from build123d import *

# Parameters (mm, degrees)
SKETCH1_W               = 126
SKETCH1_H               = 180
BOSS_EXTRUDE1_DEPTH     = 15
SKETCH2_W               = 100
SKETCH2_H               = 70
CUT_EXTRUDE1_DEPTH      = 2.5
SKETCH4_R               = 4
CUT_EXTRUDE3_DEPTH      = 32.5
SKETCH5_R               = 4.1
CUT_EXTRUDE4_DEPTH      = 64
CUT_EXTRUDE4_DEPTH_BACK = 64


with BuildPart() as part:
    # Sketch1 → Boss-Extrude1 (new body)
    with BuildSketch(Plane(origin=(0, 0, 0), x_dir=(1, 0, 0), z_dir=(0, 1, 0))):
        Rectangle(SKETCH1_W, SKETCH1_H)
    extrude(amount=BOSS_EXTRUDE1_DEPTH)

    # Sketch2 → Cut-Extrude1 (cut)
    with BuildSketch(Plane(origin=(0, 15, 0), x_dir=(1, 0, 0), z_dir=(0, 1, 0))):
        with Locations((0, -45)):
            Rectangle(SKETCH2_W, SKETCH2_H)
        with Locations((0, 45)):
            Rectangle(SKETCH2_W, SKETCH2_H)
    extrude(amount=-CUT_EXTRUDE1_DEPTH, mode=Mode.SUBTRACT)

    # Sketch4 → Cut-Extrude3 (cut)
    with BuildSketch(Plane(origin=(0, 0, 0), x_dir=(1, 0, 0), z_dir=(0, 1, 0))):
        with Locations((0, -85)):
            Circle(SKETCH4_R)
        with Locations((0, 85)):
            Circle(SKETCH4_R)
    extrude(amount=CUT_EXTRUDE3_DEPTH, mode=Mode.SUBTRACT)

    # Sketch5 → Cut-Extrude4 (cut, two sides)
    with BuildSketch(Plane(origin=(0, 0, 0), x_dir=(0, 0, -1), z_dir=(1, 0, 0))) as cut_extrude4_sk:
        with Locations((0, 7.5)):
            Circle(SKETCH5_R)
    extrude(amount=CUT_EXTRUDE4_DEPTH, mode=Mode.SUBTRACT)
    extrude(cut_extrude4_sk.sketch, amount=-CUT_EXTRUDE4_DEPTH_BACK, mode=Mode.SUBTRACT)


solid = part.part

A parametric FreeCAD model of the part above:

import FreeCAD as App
import Part
import Sketcher
from FreeCAD import Vector
Q = App.Units.Quantity


def add_polygon(sketch, points):
    """Adds a closed chain of lines whose ends are joined by coincident constraints."""
    first, n = sketch.GeometryCount, len(points)
    for a, b in zip(points, points[1:] + points[:1]):
        sketch.addGeometry(Part.LineSegment(App.Vector(*a, 0), App.Vector(*b, 0)), False)
    for i in range(n):
        sketch.addConstraint(Sketcher.Constraint("Coincident", first + i, 2, first + (i + 1) % n, 1))

doc = App.newDocument("Part")
body = doc.addObject("PartDesign::Body", "Body")

# Sketch on XZ plane
sketch1 = body.newObject("Sketcher::SketchObject", "Sketch")
sketch1.AttachmentSupport = (doc.getObject("XZ_Plane"), [""])
sketch1.MapMode = "FlatFace"
add_polygon(sketch1, [(-63, -90), (-63, 90), (63, 90), (63, -90)])  # lines 0-3
sketch1.addConstraint([
    Sketcher.Constraint("Vertical", 0),
    Sketcher.Constraint("Horizontal", 1),
    Sketcher.Constraint("Vertical", 2),
    Sketcher.Constraint("Horizontal", 3),
    Sketcher.Constraint("Symmetric", 0, 2, 2, 2, -1, 1),
    Sketcher.Constraint("DistanceX", 1, 1, 1, 2, Q("126 mm")),
    Sketcher.Constraint("DistanceY", 0, 1, 0, 2, Q("180 mm")),
])
pad1 = body.newObject("PartDesign::Pad", "Pad")
pad1.Profile = sketch1
pad1.Length = 15
pad1.Reversed = True

# Sketch on XZ plane
sketch2 = body.newObject("Sketcher::SketchObject", "Sketch001")
sketch2.AttachmentSupport = (doc.getObject("XZ_Plane"), [""])
sketch2.MapMode = "FlatFace"
sketch2.AttachmentOffset = App.Placement(Vector(0, 0, -15), App.Rotation())
add_polygon(sketch2, [(-50, 10), (-50, 80), (50, 80), (50, 10)])  # lines 0-3
add_polygon(sketch2, [(-50, -80), (-50, -10), (50, -10), (50, -80)])  # lines 4-7
sketch2.addConstraint([
    Sketcher.Constraint("Vertical", 0),
    Sketcher.Constraint("Horizontal", 1),
    Sketcher.Constraint("Vertical", 2),
    Sketcher.Constraint("Horizontal", 3),
    Sketcher.Constraint("Vertical", 4),
    Sketcher.Constraint("Horizontal", 5),
    Sketcher.Constraint("Vertical", 6),
    Sketcher.Constraint("Horizontal", 7),
    Sketcher.Constraint("Symmetric", 2, 2, 4, 2, -1, 1),
    Sketcher.Constraint("Symmetric", 0, 2, 6, 2, -1, 1),
    Sketcher.Constraint("Vertical", 3, 2, 4, 2),
    Sketcher.Constraint("DistanceX", 1, 1, 1, 2, Q("100 mm")),
    Sketcher.Constraint("DistanceY", 0, 1, 0, 2, Q("70 mm")),
    Sketcher.Constraint("DistanceY", -1, 1, 0, 2, Q("80 mm")),
])
pocket1 = body.newObject("PartDesign::Pocket", "Pocket")
pocket1.Profile = sketch2
pocket1.Length = 2.5
pocket1.Reversed = True

# Sketch on XZ plane
sketch3 = body.newObject("Sketcher::SketchObject", "Sketch002")
sketch3.AttachmentSupport = (doc.getObject("XZ_Plane"), [""])
sketch3.MapMode = "FlatFace"
sketch3.addGeometry([
    Part.Circle(Vector(0, 85, 0), Vector(0, 0, 1), 4),
    Part.Circle(Vector(0, -85, 0), Vector(0, 0, 1), 4),
], False)
sketch3.addConstraint([
    Sketcher.Constraint("Equal", 0, 1),
    Sketcher.Constraint("Symmetric", 0, 3, 1, 3, -1, 1),
    Sketcher.Constraint("PointOnObject", 0, 3, -2),
    Sketcher.Constraint("Diameter", 0, Q("8 mm")),
    Sketcher.Constraint("DistanceY", -1, 1, 0, 3, Q("85 mm")),
])
pocket2 = body.newObject("PartDesign::Pocket", "Pocket001")
pocket2.Profile = sketch3
pocket2.Length = 32.5

# Sketch on YZ plane
sketch4 = body.newObject("Sketcher::SketchObject", "Sketch003")
sketch4.AttachmentSupport = (doc.getObject("YZ_Plane"), [""])
sketch4.MapMode = "FlatFace"
sketch4.addGeometry(Part.Circle(Vector(7.5, 0, 0), Vector(0, 0, 1), 4.1), False)
sketch4.addConstraint([
    Sketcher.Constraint("PointOnObject", 0, 3, -1),
    Sketcher.Constraint("Diameter", 0, Q("8.2 mm")),
    Sketcher.Constraint("DistanceX", -1, 1, 0, 3, Q("7.5 mm")),
])
pocket3 = body.newObject("PartDesign::Pocket", "Pocket002")
pocket3.Profile = sketch4
pocket3.Type = "ThroughAll"
pocket3.Midplane = True

doc.recompute()
